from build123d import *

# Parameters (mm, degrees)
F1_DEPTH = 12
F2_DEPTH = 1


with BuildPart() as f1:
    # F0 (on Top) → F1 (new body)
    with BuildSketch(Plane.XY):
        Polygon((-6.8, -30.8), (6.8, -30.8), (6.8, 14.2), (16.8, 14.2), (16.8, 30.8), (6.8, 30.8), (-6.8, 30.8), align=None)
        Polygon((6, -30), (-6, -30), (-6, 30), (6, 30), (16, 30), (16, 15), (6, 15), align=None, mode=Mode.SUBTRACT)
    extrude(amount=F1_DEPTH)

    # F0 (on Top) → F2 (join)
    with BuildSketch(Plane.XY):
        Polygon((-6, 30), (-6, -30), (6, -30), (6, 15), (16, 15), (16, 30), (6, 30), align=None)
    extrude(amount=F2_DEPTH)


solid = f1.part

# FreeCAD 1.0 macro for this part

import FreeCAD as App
import Part
import Sketcher

V = App.Vector


def add_polygon(sketch, points):
    """Adds a closed chain of lines whose ends are joined by coincident constraints."""
    first, n = sketch.GeometryCount, len(points)
    for a, b in zip(points, points[1:] + points[:1]):
        sketch.addGeometry(Part.LineSegment(App.Vector(*a, 0), App.Vector(*b, 0)), False)
    for i in range(n):
        sketch.addConstraint(Sketcher.Constraint("Coincident", first + i, 2, first + (i + 1) % n, 1))

doc = App.newDocument("Part")
params = doc.addObject("Spreadsheet::Sheet", "Params")
for row, (alias, value) in enumerate([
    ("sketch1_width", "10 mm"),
    ("sketch1_width2", "12 mm"),
    ("sketch1_height", "45 mm"),
    ("sketch1_height2", "60 mm"),
    ("sketch1_width3", "13.6 mm"),
    ("pad1_length", "12 mm"),
    ("sketch2_width", "12 mm"),
    ("sketch2_width2", "10 mm"),
    ("sketch2_height", "60 mm"),
    ("sketch2_height2", "45 mm"),
    ("pad2_length", "1 mm"),
], start=1):
    params.set(f"A{row}", alias)
    params.set(f"B{row}", "=" + value)
    params.setAlias(f"B{row}", alias)

body = doc.addObject("PartDesign::Body", "Body")

# Sketch on XY plane
sketch1 = doc.addObject("Sketcher::SketchObject", "Sketch")
body.addObject(sketch1)
sketch1.AttachmentSupport = (doc.XY_Plane, [""])
sketch1.MapMode = "FlatFace"
add_polygon(sketch1, [(-7, -31), (7, -31), (7, 14), (17, 14), (17, 31), (-7, 31)])  # lines 0-5
add_polygon(sketch1, [(6, 15), (6, -30), (-6, -30), (-6, 30), (16, 30), (16, 15)])  # lines 6-11
sketch1.addConstraint([
    Sketcher.Constraint("Horizontal", 0),
    Sketcher.Constraint("Vertical", 1),
    Sketcher.Constraint("Horizontal", 2),
    Sketcher.Constraint("Vertical", 3),
    Sketcher.Constraint("Horizontal", 4),
    Sketcher.Constraint("Vertical", 5),
    Sketcher.Constraint("Vertical", 6),
    Sketcher.Constraint("Horizontal", 7),
    Sketcher.Constraint("Vertical", 8),
    Sketcher.Constraint("Horizontal", 9),
    Sketcher.Constraint("Vertical", 10),
    Sketcher.Constraint("Horizontal", 11),
    Sketcher.Constraint("Symmetric", 0, 2, 4, 2, -1, 1),
    Sketcher.Constraint("Symmetric", 6, 2, 8, 2, -1, 1),
    Sketcher.Constraint("Equal", 2, 11),
    Sketcher.Constraint("Equal", 1, 6),
    Sketcher.Constraint("DistanceX", 2, 1, 2, 2, 10.0),
    Sketcher.Constraint("DistanceX", 7, 2, 7, 1, 12.0),
    Sketcher.Constraint("DistanceY", 1, 1, 1, 2, 45.0),
    Sketcher.Constraint("DistanceY", 8, 1, 8, 2, 60.0),
    Sketcher.Constraint("DistanceX", 0, 1, 0, 2, 13.6),
    Sketcher.Constraint("DistanceY", 3, 1, 3, 2, 16.6),
])
sketch1.setExpression("Constraints[28]", "Params.sketch1_width")
sketch1.setExpression("Constraints[29]", "Params.sketch1_width2")
sketch1.setExpression("Constraints[30]", "Params.sketch1_height")
sketch1.setExpression("Constraints[31]", "Params.sketch1_height2")
sketch1.setExpression("Constraints[32]", "Params.sketch1_width3")
pad1 = doc.addObject("PartDesign::Pad", "Pad")
body.addObject(pad1)
pad1.Profile = sketch1
pad1.setExpression("Length", "Params.pad1_length")

# Sketch on XY plane
sketch2 = doc.addObject("Sketcher::SketchObject", "Sketch001")
body.addObject(sketch2)
sketch2.AttachmentSupport = (doc.XY_Plane, [""])
sketch2.MapMode = "FlatFace"
add_polygon(sketch2, [(-6, 30), (-6, -30), (6, -30), (6, 15), (16, 15), (16, 30)])  # lines 0-5
sketch2.addConstraint([
    Sketcher.Constraint("Vertical", 0),
    Sketcher.Constraint("Horizontal", 1),
    Sketcher.Constraint("Vertical", 2),
    Sketcher.Constraint("Horizontal", 3),
    Sketcher.Constraint("Vertical", 4),
    Sketcher.Constraint("Horizontal", 5),
    Sketcher.Constraint("Symmetric", 1, 2, 5, 2, -1, 1),
    Sketcher.Constraint("DistanceX", 1, 1, 1, 2, 12.0),
    Sketcher.Constraint("DistanceX", 3, 1, 3, 2, 10.0),
    Sketcher.Constraint("DistanceY", 0, 2, 0, 1, 60.0),
    Sketcher.Constraint("DistanceY", 2, 1, 2, 2, 45.0),
])
sketch2.setExpression("Constraints[13]", "Params.sketch2_width")
sketch2.setExpression("Constraints[14]", "Params.sketch2_width2")
sketch2.setExpression("Constraints[15]", "Params.sketch2_height")
sketch2.setExpression("Constraints[16]", "Params.sketch2_height2")
pad2 = doc.addObject("PartDesign::Pad", "Pad001")
body.addObject(pad2)
pad2.Profile = sketch2
pad2.setExpression("Length", "Params.pad2_length")

doc.recompute()
